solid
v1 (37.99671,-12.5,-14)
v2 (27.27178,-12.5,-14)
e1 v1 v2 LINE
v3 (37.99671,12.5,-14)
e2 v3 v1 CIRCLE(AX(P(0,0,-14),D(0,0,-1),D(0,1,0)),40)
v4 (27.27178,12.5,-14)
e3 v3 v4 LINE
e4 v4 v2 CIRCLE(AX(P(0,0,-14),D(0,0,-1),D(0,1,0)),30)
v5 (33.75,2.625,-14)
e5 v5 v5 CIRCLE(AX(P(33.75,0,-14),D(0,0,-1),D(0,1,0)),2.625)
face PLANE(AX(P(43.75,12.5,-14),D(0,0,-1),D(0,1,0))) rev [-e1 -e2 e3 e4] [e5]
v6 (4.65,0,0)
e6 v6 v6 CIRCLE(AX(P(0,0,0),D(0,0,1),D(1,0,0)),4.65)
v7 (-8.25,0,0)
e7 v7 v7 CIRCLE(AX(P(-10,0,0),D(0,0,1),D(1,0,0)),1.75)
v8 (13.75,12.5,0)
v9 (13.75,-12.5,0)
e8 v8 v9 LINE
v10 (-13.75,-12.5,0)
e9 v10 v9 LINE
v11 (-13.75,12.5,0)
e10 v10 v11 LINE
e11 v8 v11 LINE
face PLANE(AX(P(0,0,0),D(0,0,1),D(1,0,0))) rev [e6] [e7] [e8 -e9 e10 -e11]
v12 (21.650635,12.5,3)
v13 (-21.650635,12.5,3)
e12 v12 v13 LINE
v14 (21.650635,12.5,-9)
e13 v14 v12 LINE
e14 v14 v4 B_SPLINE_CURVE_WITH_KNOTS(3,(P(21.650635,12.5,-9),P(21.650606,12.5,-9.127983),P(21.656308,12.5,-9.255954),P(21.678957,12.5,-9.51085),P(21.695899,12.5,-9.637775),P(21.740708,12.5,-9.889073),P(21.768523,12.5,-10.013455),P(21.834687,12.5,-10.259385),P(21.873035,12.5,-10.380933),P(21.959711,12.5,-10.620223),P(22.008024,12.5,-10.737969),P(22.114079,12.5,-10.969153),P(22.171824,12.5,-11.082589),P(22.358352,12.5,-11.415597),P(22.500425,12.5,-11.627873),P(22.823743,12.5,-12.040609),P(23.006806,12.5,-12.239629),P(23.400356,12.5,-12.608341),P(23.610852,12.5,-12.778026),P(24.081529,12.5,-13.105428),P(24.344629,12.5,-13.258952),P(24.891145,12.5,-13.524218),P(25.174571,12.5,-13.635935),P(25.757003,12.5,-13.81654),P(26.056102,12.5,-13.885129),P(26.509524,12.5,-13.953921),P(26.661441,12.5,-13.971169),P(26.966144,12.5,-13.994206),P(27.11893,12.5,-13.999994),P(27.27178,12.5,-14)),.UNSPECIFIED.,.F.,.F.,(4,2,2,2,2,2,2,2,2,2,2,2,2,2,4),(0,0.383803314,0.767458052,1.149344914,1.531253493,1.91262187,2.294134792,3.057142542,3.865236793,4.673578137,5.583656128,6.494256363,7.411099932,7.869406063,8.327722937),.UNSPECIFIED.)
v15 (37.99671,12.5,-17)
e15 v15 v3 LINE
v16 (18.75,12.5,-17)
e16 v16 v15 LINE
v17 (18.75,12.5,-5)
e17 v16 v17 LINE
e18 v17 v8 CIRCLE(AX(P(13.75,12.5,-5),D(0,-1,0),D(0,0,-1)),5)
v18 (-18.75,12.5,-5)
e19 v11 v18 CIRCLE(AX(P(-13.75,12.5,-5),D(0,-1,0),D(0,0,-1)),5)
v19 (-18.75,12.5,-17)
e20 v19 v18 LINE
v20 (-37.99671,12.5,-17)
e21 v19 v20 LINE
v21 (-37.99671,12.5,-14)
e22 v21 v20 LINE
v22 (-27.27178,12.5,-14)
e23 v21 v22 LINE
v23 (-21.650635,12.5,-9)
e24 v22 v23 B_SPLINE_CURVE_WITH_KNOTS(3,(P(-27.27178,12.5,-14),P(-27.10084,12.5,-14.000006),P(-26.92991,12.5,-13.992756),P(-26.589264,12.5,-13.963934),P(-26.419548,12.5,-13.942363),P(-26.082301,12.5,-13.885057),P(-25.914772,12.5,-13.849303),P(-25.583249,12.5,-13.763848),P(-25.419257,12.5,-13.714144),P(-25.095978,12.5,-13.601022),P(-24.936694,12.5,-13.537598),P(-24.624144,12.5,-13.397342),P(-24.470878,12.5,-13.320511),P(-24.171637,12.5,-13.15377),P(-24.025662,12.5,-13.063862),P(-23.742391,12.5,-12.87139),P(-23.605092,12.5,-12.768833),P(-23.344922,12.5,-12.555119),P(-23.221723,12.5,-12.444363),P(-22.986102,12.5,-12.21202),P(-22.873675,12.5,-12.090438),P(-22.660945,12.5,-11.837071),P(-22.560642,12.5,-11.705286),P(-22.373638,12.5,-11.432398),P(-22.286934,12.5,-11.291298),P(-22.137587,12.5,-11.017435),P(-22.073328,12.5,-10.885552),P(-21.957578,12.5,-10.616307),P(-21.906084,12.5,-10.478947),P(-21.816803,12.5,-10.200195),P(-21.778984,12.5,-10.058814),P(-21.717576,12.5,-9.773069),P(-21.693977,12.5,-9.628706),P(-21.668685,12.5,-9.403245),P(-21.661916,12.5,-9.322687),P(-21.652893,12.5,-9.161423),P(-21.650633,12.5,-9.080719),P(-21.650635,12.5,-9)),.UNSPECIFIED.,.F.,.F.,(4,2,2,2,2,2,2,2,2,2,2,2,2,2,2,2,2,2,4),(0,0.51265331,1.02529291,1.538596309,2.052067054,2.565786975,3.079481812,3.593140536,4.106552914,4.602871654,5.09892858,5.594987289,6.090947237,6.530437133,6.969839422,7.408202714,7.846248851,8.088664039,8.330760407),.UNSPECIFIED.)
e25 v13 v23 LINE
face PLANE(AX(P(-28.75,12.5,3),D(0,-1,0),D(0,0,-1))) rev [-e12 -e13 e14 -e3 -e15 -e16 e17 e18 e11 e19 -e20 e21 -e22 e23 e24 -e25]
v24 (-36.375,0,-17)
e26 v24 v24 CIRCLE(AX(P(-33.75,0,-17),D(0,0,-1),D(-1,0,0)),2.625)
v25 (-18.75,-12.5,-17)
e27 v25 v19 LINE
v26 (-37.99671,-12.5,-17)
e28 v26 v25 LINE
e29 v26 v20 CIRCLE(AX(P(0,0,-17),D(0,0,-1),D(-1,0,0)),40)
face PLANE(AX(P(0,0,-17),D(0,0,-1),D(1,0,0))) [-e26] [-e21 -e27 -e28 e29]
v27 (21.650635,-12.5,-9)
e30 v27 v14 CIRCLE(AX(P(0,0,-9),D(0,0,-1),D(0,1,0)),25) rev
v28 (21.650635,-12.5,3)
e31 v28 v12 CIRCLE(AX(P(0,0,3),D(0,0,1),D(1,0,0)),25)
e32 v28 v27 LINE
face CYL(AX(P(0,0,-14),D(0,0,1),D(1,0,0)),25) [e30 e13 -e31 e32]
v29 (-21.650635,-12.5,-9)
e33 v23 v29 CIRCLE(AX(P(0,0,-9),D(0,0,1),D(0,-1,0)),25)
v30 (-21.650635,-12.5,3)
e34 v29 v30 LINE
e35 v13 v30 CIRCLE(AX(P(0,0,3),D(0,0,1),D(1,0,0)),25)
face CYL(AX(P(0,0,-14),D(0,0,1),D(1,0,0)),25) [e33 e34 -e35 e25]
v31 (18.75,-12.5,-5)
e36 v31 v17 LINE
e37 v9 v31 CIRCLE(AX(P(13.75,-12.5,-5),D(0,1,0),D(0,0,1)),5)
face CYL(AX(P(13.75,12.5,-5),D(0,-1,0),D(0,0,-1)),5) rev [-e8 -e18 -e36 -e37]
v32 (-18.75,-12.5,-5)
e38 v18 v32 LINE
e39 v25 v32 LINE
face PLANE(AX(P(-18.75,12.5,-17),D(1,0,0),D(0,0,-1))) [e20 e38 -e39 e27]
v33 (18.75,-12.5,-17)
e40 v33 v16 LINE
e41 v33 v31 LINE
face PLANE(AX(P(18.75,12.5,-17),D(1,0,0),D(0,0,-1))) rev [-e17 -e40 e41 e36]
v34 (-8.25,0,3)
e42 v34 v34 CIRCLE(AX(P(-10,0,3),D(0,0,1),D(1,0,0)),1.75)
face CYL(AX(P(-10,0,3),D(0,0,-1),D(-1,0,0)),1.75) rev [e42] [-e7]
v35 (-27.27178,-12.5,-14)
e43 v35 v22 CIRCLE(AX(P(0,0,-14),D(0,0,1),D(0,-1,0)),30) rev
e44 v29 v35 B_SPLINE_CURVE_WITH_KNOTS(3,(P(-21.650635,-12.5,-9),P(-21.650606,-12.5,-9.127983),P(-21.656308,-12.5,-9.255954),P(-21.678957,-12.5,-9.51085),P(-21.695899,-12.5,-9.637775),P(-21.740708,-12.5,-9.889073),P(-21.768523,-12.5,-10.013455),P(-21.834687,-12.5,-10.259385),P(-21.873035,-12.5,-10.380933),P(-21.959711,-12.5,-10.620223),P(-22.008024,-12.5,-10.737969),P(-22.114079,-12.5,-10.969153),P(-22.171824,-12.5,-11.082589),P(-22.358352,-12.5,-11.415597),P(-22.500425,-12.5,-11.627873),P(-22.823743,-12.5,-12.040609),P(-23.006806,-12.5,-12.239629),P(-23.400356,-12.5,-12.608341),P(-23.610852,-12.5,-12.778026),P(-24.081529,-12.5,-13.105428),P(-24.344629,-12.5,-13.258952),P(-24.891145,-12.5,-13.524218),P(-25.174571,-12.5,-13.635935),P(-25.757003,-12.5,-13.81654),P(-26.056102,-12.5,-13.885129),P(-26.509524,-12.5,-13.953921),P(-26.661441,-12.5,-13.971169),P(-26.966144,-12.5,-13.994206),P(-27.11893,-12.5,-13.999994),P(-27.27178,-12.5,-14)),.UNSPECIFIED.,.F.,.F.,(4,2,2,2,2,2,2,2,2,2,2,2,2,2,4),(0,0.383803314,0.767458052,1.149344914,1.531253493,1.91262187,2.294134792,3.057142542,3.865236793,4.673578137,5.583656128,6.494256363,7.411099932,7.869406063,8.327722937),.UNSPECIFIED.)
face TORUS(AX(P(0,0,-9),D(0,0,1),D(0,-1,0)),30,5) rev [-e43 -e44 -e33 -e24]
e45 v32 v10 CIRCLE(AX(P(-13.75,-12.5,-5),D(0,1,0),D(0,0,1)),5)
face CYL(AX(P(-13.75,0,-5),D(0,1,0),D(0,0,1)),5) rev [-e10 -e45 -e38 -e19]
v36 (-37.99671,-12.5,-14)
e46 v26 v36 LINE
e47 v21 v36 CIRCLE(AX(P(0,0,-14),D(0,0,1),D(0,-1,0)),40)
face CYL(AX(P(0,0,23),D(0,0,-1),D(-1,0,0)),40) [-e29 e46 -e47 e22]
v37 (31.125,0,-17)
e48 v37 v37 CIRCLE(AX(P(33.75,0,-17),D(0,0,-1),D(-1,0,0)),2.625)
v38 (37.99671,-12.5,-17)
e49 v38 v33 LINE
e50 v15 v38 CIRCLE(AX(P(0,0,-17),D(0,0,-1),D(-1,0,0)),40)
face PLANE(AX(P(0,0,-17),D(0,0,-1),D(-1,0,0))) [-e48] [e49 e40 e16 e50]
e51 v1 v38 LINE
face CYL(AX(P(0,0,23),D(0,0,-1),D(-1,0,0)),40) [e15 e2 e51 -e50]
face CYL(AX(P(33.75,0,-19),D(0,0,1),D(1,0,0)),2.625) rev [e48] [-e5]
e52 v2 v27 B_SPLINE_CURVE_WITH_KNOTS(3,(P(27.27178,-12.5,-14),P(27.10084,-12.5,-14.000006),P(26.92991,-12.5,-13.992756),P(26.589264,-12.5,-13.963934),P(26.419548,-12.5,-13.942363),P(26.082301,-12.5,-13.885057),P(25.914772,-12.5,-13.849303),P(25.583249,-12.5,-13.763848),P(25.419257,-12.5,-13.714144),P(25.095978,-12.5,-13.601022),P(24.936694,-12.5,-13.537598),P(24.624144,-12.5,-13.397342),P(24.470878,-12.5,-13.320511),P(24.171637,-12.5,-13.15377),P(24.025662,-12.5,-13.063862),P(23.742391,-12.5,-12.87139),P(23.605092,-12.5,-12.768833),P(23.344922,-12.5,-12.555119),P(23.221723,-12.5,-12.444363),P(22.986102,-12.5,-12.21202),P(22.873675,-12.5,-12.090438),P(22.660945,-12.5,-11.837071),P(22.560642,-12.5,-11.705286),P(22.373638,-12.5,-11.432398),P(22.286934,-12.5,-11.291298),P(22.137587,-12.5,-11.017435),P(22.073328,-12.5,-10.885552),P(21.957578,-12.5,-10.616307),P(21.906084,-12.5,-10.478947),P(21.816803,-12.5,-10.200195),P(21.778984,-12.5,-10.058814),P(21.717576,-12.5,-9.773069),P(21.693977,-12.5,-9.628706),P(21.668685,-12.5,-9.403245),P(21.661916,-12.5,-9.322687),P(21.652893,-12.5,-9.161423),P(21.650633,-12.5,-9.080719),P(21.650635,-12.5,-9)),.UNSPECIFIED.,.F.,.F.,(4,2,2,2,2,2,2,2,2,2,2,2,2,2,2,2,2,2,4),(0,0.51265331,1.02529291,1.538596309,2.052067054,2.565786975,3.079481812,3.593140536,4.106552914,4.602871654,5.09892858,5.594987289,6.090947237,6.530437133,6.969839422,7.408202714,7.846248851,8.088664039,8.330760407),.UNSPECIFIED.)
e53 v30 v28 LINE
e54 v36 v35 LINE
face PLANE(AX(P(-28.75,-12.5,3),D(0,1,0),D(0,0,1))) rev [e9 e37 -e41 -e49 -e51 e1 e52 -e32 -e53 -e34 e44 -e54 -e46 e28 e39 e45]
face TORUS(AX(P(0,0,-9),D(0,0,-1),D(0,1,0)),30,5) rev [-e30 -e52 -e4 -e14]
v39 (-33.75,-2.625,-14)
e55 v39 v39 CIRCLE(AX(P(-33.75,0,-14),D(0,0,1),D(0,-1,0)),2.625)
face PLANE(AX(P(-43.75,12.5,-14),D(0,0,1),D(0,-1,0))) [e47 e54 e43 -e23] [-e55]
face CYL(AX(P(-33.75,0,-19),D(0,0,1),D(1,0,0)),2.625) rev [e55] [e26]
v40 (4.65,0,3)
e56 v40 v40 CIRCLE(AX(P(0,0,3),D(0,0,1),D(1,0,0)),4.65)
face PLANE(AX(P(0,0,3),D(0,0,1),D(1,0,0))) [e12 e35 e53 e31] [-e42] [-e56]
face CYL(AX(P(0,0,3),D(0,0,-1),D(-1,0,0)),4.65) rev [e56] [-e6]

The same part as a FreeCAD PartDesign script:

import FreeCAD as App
import Part
import Sketcher
from FreeCAD import Vector


def edges_at(feature, points):
    """Names of the edges that pass closest to the given points."""
    edges = feature.Shape.Edges
    near = lambda p: min(range(len(edges)), key=lambda i: edges[i].distToShape(Part.Vertex(*p))[0])
    return sorted({f"Edge{near(p) + 1}" for p in points})


def add_polygon(sketch, points):
    """Adds a closed chain of lines whose ends are joined by coincident constraints."""
    first, n = sketch.GeometryCount, len(points)
    for a, b in zip(points, points[1:] + points[:1]):
        sketch.addGeometry(Part.LineSegment(App.Vector(*a, 0), App.Vector(*b, 0)), False)
    for i in range(n):
        sketch.addConstraint(Sketcher.Constraint("Coincident", first + i, 2, first + (i + 1) % n, 1))

doc = App.newDocument("Part")
body = doc.addObject("PartDesign::Body", "Body")

# Sketch on XY plane
sketch1 = body.newObject("Sketcher::SketchObject", "Sketch")
sketch1.AttachmentSupport = (doc.getObject("XY_Plane"), [""])
sketch1.MapMode = "FlatFace"
add_polygon(sketch1, [(-28.75, 12.5), (-28.75, -12.5), (28.75, -12.5), (28.75, 12.5)])  # lines 0-3
sketch1.addGeometry(Part.Circle(Vector(-10, 0, 0), Vector(0, 0, 1), 1.75), False)  # 4
sketch1.addGeometry(Part.Circle(Vector(0, 0, 0), Vector(0, 0, 1), 4.65), False)  # 5
sketch1.addConstraint([
    Sketcher.Constraint("Vertical", 0),
    Sketcher.Constraint("Horizontal", 1),
    Sketcher.Constraint("Vertical", 2),
    Sketcher.Constraint("Horizontal", 3),
    Sketcher.Constraint("Coincident", 5, 3, -1, 1),
    Sketcher.Constraint("Symmetric", 0, 2, 2, 2, -1, 1),
    Sketcher.Constraint("PointOnObject", 4, 3, -1),
    Sketcher.Constraint("Diameter", 4, 3.5),
    Sketcher.Constraint("Diameter", 5, 9.3),
    Sketcher.Constraint("DistanceY", 0, 2, 0, 1, 25.0),
    Sketcher.Constraint("DistanceX", 1, 1, 1, 2, 57.5),
    Sketcher.Constraint("DistanceX", 4, 3, -1, 1, 10.0),
])
pad1 = body.newObject("PartDesign::Pad", "Pad")
pad1.Profile = sketch1
pad1.Length = 3

# Sketch on XY plane
sketch2 = body.newObject("Sketcher::SketchObject", "Sketch001")
sketch2.AttachmentSupport = (doc.getObject("XY_Plane"), [""])
sketch2.MapMode = "FlatFace"
add_polygon(sketch2, [(28.75, 12.5), (28.75, -12.5), (18.75, -12.5), (18.75, 12.5)])  # lines 0-3
sketch2.addConstraint([
    Sketcher.Constraint("Vertical", 0),
    Sketcher.Constraint("Horizontal", 1),
    Sketcher.Constraint("Vertical", 2),
    Sketcher.Constraint("Horizontal", 3),
    Sketcher.Constraint("DistanceX", 1, 2, 1, 1, 10.0),
    Sketcher.Constraint("DistanceY", 0, 2, 0, 1, 25.0),
    Sketcher.Constraint("DistanceY", 0, 2, -1, 1, 12.5),
    Sketcher.Constraint("DistanceX", -1, 1, 0, 2, 28.75),
])
pad2 = body.newObject("PartDesign::Pad", "Pad001")
pad2.Profile = sketch2
pad2.Length = 17
pad2.Reversed = True

# Sketch on YZ plane
sketch3 = body.newObject("Sketcher::SketchObject", "Sketch002")
sketch3.AttachmentSupport = (doc.getObject("YZ_Plane"), [""])
sketch3.MapMode = "FlatFace"
sketch3.AttachmentOffset = App.Placement(Vector(0, 0, 28.75), App.Rotation())
add_polygon(sketch3, [(12.5, -14), (-12.5, -14), (-12.5, -17), (12.5, -17)])  # lines 0-3
sketch3.addConstraint([
    Sketcher.Constraint("Horizontal", 0),
    Sketcher.Constraint("Vertical", 1),
    Sketcher.Constraint("Horizontal", 2),
    Sketcher.Constraint("Vertical", 3),
    Sketcher.Constraint("DistanceX", 0, 2, 0, 1, 25.0),
    Sketcher.Constraint("DistanceY", 1, 2, 1, 1, 3.0),
    Sketcher.Constraint("DistanceY", 0, 2, -1, 1, 14.0),
    Sketcher.Constraint("DistanceX", 0, 2, -1, 1, 12.5),
])
pad3 = body.newObject("PartDesign::Pad", "Pad002")
pad3.Profile = sketch3
pad3.Length = 15
doc.recompute()

mirrored = body.newObject("PartDesign::Mirrored", "Mirrored")
mirrored.Originals = [pad2]
mirrored.MirrorPlane = (doc.getObject("YZ_Plane"), [""])
body.Tip = mirrored
doc.recompute()

mirrored2 = body.newObject("PartDesign::Mirrored", "Mirrored001")
mirrored2.Originals = [pad3]
mirrored2.MirrorPlane = (doc.getObject("YZ_Plane"), [""])
body.Tip = mirrored2

# Sketch on XY plane
sketch4 = body.newObject("Sketcher::SketchObject", "Sketch003")
sketch4.AttachmentSupport = (doc.getObject("XY_Plane"), [""])
sketch4.MapMode = "FlatFace"
sketch4.AttachmentOffset = App.Placement(Vector(0, 0, -17), App.Rotation())
sketch4.addGeometry([
    Part.Circle(Vector(0, 0, 0), Vector(0, 0, 1), 69.668682),
    Part.Circle(Vector(0, 0, 0), Vector(0, 0, 1), 40),
], False)
sketch4.addConstraint([
    Sketcher.Constraint("Coincident", 0, 3, -1, 1),
    Sketcher.Constraint("Coincident", 1, 3, -1, 1),
    Sketcher.Constraint("Diameter", 1, 80.0),
    Sketcher.Constraint("Diameter", 0, 139.337364),
])
pocket1 = body.newObject("PartDesign::Pocket", "Pocket")
pocket1.Profile = sketch4
pocket1.Length = 40
pocket1.Reversed = True

# Sketch on XY plane
sketch5 = body.newObject("Sketcher::SketchObject", "Sketch004")
sketch5.AttachmentSupport = (doc.getObject("XY_Plane"), [""])
sketch5.MapMode = "FlatFace"
sketch5.AttachmentOffset = App.Placement(Vector(0, 0, -14), App.Rotation())
sketch5.addGeometry([
    Part.Circle(Vector(-33.75, 0, 0), Vector(0, 0, 1), 2.625),
    Part.Circle(Vector(33.75, 0, 0), Vector(0, 0, 1), 2.625),
], False)
sketch5.addConstraint([
    Sketcher.Constraint("Equal", 0, 1),
    Sketcher.Constraint("Symmetric", 0, 3, 1, 3, -1, 1),
    Sketcher.Constraint("PointOnObject", 0, 3, -1),
    Sketcher.Constraint("Diameter", 0, 5.25),
    Sketcher.Constraint("DistanceX", 0, 3, 1, 3, 67.5),
])
pocket2 = body.newObject("PartDesign::Pocket", "Pocket001")
pocket2.Profile = sketch5
pocket2.Length = 10
pocket2.Midplane = True

# Sketch on XY plane
sketch6 = body.newObject("Sketcher::SketchObject", "Sketch005")
sketch6.AttachmentSupport = (doc.getObject("XY_Plane"), [""])
sketch6.MapMode = "FlatFace"
sketch6.AttachmentOffset = App.Placement(Vector(0, 0, 3), App.Rotation())
sketch6.addGeometry([
    Part.Circle(Vector(0, 0, 0), Vector(0, 0, 1), 34.641133),
    Part.Circle(Vector(0, 0, 0), Vector(0, 0, 1), 25),
], False)
sketch6.addConstraint([
    Sketcher.Constraint("Coincident", 0, 3, -1, 1),
    Sketcher.Constraint("Coincident", 1, 3, -1, 1),
    Sketcher.Constraint("Diameter", 1, 50.0),
    Sketcher.Constraint("Diameter", 0, 69.282266),
])
pocket3 = body.newObject("PartDesign::Pocket", "Pocket002")
pocket3.Profile = sketch6
pocket3.Length = 17
doc.recompute()

fillet = body.newObject("PartDesign::Fillet", "Fillet")
fillet.Base = (pocket3, edges_at(pocket3, [
    (-25, 0, -14),
    (25, 0, -14),
    (18.75, 0, 0),
    (-18.75, 0, 0),
]))
fillet.Radius = 5

doc.recompute()
